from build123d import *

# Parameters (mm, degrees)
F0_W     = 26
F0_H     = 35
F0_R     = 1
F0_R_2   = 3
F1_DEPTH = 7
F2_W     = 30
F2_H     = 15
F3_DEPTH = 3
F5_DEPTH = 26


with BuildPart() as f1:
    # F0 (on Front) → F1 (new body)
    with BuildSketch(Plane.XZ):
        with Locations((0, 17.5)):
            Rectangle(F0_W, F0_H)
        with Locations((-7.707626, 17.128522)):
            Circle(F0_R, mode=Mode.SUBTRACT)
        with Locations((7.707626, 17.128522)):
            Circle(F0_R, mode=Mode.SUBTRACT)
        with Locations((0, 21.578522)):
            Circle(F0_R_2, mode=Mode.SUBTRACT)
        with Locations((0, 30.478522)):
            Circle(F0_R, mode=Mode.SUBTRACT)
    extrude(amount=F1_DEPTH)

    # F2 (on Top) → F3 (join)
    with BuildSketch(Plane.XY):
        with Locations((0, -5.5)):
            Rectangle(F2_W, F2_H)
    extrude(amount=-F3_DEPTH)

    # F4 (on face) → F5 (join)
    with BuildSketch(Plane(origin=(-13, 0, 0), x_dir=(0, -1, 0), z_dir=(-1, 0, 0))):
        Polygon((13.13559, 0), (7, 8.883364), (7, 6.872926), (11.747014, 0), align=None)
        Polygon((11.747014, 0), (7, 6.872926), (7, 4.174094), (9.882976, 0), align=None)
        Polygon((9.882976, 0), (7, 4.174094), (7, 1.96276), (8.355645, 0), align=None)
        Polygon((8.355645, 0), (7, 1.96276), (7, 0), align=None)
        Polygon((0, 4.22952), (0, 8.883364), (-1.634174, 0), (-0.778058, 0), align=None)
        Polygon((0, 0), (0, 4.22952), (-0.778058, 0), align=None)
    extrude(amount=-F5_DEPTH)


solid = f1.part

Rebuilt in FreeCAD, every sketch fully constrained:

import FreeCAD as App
import Part
import Sketcher
from FreeCAD import Vector
Q = App.Units.Quantity


def add_polygon(sketch, points):
    """Adds a closed chain of lines whose ends are joined by coincident constraints."""
    first, n = sketch.GeometryCount, len(points)
    for a, b in zip(points, points[1:] + points[:1]):
        sketch.addGeometry(Part.LineSegment(App.Vector(*a, 0), App.Vector(*b, 0)), False)
    for i in range(n):
        sketch.addConstraint(Sketcher.Constraint("Coincident", first + i, 2, first + (i + 1) % n, 1))

doc = App.newDocument("Part")
body = doc.addObject("PartDesign::Body", "Body")

# Sketch on XZ plane
sketch1 = doc.addObject("Sketcher::SketchObject", "Sketch")
body.addObject(sketch1)
sketch1.AttachmentSupport = (doc.XZ_Plane, [""])
sketch1.MapMode = "FlatFace"
add_polygon(sketch1, [(-13, 35), (-13, 0), (13, 0), (13, 35)])  # lines 0-3
sketch1.addGeometry(Part.Circle(Vector(-7.7, 17.1, 0), Vector(0, 0, 1), 1), False)  # 4
sketch1.addGeometry(Part.Circle(Vector(7.7, 17.1, 0), Vector(0, 0, 1), 1), False)  # 5
sketch1.addGeometry(Part.Circle(Vector(0, 21.6, 0), Vector(0, 0, 1), 3), False)  # 6
sketch1.addGeometry(Part.Circle(Vector(0, 30.5, 0), Vector(0, 0, 1), 1), False)  # 7
sketch1.addConstraint(Sketcher.Constraint("Vertical", 0))
sketch1.addConstraint(Sketcher.Constraint("Horizontal", 1))
sketch1.addConstraint(Sketcher.Constraint("Vertical", 2))
sketch1.addConstraint(Sketcher.Constraint("Horizontal", 3))
sketch1.addConstraint(Sketcher.Constraint("Equal", 4, 5))
sketch1.addConstraint(Sketcher.Constraint("Equal", 5, 7))
sketch1.addConstraint(Sketcher.Constraint("Symmetric", 0, 2, 1, 2, -1, 1))
sketch1.addConstraint(Sketcher.Constraint("Symmetric", 4, 3, 5, 3, -2))
sketch1.addConstraint(Sketcher.Constraint("PointOnObject", 6, 3, -2))
sketch1.addConstraint(Sketcher.Constraint("PointOnObject", 7, 3, -2))
sketch1.addConstraint(Sketcher.Constraint("Diameter", 4, Q("2 mm")))
sketch1.addConstraint(Sketcher.Constraint("Diameter", 6, Q("6 mm")))
sketch1.addConstraint(Sketcher.Constraint("DistanceX", 1, 1, 1, 2, Q("26 mm")))
sketch1.addConstraint(Sketcher.Constraint("DistanceY", 0, 2, 0, 1, Q("35 mm")))
sketch1.addConstraint(Sketcher.Constraint("DistanceY", 6, 3, 7, 3, Q("8.9 mm")))
sketch1.addConstraint(Sketcher.Constraint("DistanceY", 4, 3, 6, 3, Q("4.45 mm")))
sketch1.addConstraint(Sketcher.Constraint("DistanceY", -1, 1, 4, 3, Q("17.128522 mm")))
sketch1.addConstraint(Sketcher.Constraint("DistanceX", 4, 3, -1, 1, Q("7.707626 mm")))
pad1 = doc.addObject("PartDesign::Pad", "Pad")
body.addObject(pad1)
pad1.Profile = sketch1
pad1.Length = 7

# Sketch on XY plane
sketch2 = doc.addObject("Sketcher::SketchObject", "Sketch001")
body.addObject(sketch2)
sketch2.AttachmentSupport = (doc.XY_Plane, [""])
sketch2.MapMode = "FlatFace"
add_polygon(sketch2, [(-15, 2), (-15, -13), (15, -13), (15, 2)])  # lines 0-3
sketch2.addConstraint(Sketcher.Constraint("Vertical", 0))
sketch2.addConstraint(Sketcher.Constraint("Horizontal", 1))
sketch2.addConstraint(Sketcher.Constraint("Vertical", 2))
sketch2.addConstraint(Sketcher.Constraint("Horizontal", 3))
sketch2.addConstraint(Sketcher.Constraint("DistanceX", 1, 1, 1, 2, Q("30 mm")))
sketch2.addConstraint(Sketcher.Constraint("DistanceY", 0, 2, 0, 1, Q("15 mm")))
sketch2.addConstraint(Sketcher.Constraint("DistanceX", 0, 2, -1, 1, Q("15 mm")))
sketch2.addConstraint(Sketcher.Constraint("DistanceY", 0, 2, -1, 1, Q("13 mm")))
pad2 = doc.addObject("PartDesign::Pad", "Pad001")
body.addObject(pad2)
pad2.Profile = sketch2
pad2.Length = 3
pad2.Reversed = True

# Sketch on YZ plane
sketch3 = doc.addObject("Sketcher::SketchObject", "Sketch002")
body.addObject(sketch3)
sketch3.AttachmentSupport = (doc.YZ_Plane, [""])
sketch3.MapMode = "FlatFace"
sketch3.AttachmentOffset = App.Placement(Vector(0, 0, -13), App.Rotation())
add_polygon(sketch3, [(-13.1, 0), (-7, 8.9), (-7, 0)])  # lines 0-2
add_polygon(sketch3, [(0, 8.9), (1.6, 0), (0, 0)])  # lines 3-5
sketch3.addConstraint(Sketcher.Constraint("Vertical", 1))
sketch3.addConstraint(Sketcher.Constraint("Horizontal", 2))
sketch3.addConstraint(Sketcher.Constraint("Horizontal", 4))
sketch3.addConstraint(Sketcher.Constraint("Vertical", 5))
sketch3.addConstraint(Sketcher.Constraint("Coincident", 4, 2, -1, 1))
sketch3.addConstraint(Sketcher.Constraint("PointOnObject", 1, 2, -1))
sketch3.addConstraint(Sketcher.Constraint("Horizontal", 0, 2, 5, 2))
sketch3.addConstraint(Sketcher.Constraint("DistanceX", 0, 2, -1, 1, Q("7 mm")))
sketch3.addConstraint(Sketcher.Constraint("DistanceX", 2, 2, 2, 1, Q("6.13559 mm")))
sketch3.addConstraint(Sketcher.Constraint("Distance", 0, Q("10.796278 mm")))
sketch3.addConstraint(Sketcher.Constraint("DistanceX", 4, 2, 4, 1, Q("1.634174 mm")))
pad3 = doc.addObject("PartDesign::Pad", "Pad002")
body.addObject(pad3)
pad3.Profile = sketch3
pad3.Length = 26

doc.recompute()
